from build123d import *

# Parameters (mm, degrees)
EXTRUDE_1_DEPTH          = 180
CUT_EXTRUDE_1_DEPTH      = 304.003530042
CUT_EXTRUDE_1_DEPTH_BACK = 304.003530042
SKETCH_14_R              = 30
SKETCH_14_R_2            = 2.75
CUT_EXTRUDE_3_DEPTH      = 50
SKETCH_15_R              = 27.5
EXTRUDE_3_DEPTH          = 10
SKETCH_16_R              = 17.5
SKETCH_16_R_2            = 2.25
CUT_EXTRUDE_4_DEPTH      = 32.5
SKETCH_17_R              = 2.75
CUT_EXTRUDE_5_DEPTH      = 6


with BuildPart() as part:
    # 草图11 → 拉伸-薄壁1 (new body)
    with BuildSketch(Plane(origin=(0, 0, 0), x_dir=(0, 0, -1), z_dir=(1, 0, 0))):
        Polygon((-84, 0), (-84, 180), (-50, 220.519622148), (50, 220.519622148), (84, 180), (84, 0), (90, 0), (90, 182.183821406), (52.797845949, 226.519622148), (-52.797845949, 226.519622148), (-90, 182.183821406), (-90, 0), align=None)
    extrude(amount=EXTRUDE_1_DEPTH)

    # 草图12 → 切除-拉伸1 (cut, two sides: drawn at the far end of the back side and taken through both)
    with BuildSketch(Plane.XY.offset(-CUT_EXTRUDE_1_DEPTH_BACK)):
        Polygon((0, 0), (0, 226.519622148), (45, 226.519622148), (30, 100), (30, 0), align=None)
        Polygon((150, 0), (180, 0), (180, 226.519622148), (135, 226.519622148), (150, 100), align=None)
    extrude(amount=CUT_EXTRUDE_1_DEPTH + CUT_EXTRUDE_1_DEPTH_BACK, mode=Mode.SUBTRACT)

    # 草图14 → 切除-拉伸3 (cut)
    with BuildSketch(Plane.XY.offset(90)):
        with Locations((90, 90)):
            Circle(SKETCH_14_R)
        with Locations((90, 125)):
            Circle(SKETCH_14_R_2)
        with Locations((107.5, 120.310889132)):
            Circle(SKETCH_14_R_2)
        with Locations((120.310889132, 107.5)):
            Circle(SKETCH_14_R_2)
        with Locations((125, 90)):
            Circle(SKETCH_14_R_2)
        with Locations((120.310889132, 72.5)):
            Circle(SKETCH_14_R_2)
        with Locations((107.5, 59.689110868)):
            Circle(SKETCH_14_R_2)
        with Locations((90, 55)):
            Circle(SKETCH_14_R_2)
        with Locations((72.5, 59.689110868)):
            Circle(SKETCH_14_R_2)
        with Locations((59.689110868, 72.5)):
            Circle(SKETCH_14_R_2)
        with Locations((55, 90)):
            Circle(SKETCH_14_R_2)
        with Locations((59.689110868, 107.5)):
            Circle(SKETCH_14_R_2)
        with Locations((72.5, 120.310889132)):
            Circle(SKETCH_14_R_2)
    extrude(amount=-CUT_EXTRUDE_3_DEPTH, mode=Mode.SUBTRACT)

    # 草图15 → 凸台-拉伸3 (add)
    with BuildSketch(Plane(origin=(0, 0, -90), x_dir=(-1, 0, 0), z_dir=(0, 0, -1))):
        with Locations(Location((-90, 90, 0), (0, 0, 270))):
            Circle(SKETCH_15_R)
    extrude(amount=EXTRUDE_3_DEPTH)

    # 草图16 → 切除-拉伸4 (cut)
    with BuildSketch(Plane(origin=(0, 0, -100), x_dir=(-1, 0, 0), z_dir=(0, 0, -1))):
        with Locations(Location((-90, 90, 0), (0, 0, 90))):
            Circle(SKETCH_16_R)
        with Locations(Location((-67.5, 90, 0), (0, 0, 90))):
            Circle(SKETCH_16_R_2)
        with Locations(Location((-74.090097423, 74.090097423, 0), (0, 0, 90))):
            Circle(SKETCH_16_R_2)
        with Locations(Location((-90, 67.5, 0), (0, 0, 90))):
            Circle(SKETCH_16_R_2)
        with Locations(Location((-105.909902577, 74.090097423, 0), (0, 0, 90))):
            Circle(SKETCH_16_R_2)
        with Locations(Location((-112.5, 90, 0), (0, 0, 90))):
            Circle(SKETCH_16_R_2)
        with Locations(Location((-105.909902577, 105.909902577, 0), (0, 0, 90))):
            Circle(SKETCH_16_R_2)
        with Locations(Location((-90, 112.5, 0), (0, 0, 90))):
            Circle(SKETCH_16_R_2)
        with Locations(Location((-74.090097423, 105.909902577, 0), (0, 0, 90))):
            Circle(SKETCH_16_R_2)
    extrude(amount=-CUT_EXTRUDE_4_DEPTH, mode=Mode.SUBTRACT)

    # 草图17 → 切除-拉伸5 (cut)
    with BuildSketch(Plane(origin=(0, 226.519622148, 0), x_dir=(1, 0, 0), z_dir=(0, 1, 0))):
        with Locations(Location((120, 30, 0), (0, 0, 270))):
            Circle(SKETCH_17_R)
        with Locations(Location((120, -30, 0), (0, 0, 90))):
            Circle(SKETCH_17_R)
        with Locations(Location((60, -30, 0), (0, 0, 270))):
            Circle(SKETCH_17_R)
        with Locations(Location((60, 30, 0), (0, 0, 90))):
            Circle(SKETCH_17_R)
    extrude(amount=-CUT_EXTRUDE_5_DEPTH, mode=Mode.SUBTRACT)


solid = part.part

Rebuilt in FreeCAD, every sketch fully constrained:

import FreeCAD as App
import Part
import Sketcher
Q = App.Units.Quantity


def add_polygon(sketch, points):
    """Adds a closed chain of lines whose ends are joined by coincident constraints."""
    first, n = sketch.GeometryCount, len(points)
    for a, b in zip(points, points[1:] + points[:1]):
        sketch.addGeometry(Part.LineSegment(App.Vector(*a, 0), App.Vector(*b, 0)), False)
    for i in range(n):
        sketch.addConstraint(Sketcher.Constraint("Coincident", first + i, 2, first + (i + 1) % n, 1))

doc = App.newDocument("Part")
body = doc.addObject("PartDesign::Body", "Body")

# Sketch on YZ plane
sketch1 = body.newObject("Sketcher::SketchObject", "Sketch")
sketch1.AttachmentSupport = (doc.getObject("YZ_Plane"), [""])
sketch1.MapMode = "FlatFace"
add_polygon(sketch1, [(0, 84), (180, 84), (221, 50), (221, -50), (180, -84), (0, -84), (0, -90), (182, -90), (227, -53), (227, 53), (182, 90), (0, 90)])  # lines 0-11
sketch1.addConstraint([
    Sketcher.Constraint("Horizontal", 0),
    Sketcher.Constraint("Vertical", 2),
    Sketcher.Constraint("Horizontal", 4),
    Sketcher.Constraint("Vertical", 5),
    Sketcher.Constraint("Horizontal", 6),
    Sketcher.Constraint("Vertical", 8),
    Sketcher.Constraint("Horizontal", 10),
    Sketcher.Constraint("Vertical", 11),
    Sketcher.Constraint("Symmetric", 5, 2, 10, 2, -1, 1),
    Sketcher.Constraint("Symmetric", 0, 2, 3, 2, -1),
    Sketcher.Constraint("PointOnObject", 4, 2, -2),
    Sketcher.Constraint("Parallel", 3, 7),
    Sketcher.Constraint("Parallel", 1, 9),
    Sketcher.Constraint("Vertical", 6, 2, 9, 2),
    Sketcher.Constraint("Equal", 1, 3),
    Sketcher.Constraint("DistanceX", 0, 1, 0, 2, 180.0),
    Sketcher.Constraint("DistanceY", 2, 2, 2, 1, 100.0),
    Sketcher.Constraint("DistanceY", 5, 2, 5, 1, 6.0),
    Sketcher.Constraint("Angle", 1, Q("-40 deg")),
    Sketcher.Constraint("DistanceY", -1, 1, 0, 2, 84.0),
    Sketcher.Constraint("DistanceX", 2, 2, 7, 2, 6.0),
    Sketcher.Constraint("DistanceX", 6, 1, 6, 2, 182.183821),
])
pad1 = body.newObject("PartDesign::Pad", "Pad")
pad1.Profile = sketch1
pad1.Length = 180

# Sketch on XY plane
sketch2 = body.newObject("Sketcher::SketchObject", "Sketch001")
sketch2.AttachmentSupport = (doc.getObject("XY_Plane"), [""])
sketch2.MapMode = "FlatFace"
add_polygon(sketch2, [(0, 227), (0, 0), (30, 0), (30, 100), (45, 227)])  # lines 0-4
add_polygon(sketch2, [(150, 0), (180, 0), (180, 227), (135, 227), (150, 100)])  # lines 5-9
sketch2.addConstraint([
    Sketcher.Constraint("Vertical", 0),
    Sketcher.Constraint("Horizontal", 1),
    Sketcher.Constraint("Vertical", 2),
    Sketcher.Constraint("Horizontal", 4),
    Sketcher.Constraint("Horizontal", 5),
    Sketcher.Constraint("Vertical", 6),
    Sketcher.Constraint("Horizontal", 7),
    Sketcher.Constraint("Vertical", 9),
    Sketcher.Constraint("Coincident", 0, 2, -1, 1),
    Sketcher.Constraint("PointOnObject", 5, 2, -1),
    Sketcher.Constraint("Horizontal", 4, 2, 6, 2),
    Sketcher.Constraint("Horizontal", 2, 2, 8, 2),
    Sketcher.Constraint("Equal", 1, 5),
    Sketcher.Constraint("Equal", 4, 7),
    Sketcher.Constraint("DistanceX", 1, 1, 1, 2, 30.0),
    Sketcher.Constraint("DistanceX", 4, 2, 4, 1, 45.0),
    Sketcher.Constraint("DistanceY", 2, 1, 2, 2, 100.0),
    Sketcher.Constraint("DistanceX", -1, 1, 5, 2, 180.0),
    Sketcher.Constraint("Distance", 3, 127.405709),
])
pocket1 = body.newObject("PartDesign::Pocket", "Pocket")
pocket1.Profile = sketch2
pocket1.Type = "ThroughAll"
pocket1.Midplane = True

# Sketch on XY plane
sketch3 = body.newObject("Sketcher::SketchObject", "Sketch002")
sketch3.AttachmentSupport = (doc.getObject("XY_Plane"), [""])
sketch3.MapMode = "FlatFace"
sketch3.AttachmentOffset = App.Placement(App.Vector(0, 0, 90), App.Rotation())
sketch3.addGeometry([
    Part.Circle(App.Vector(90, 90, 0), App.Vector(0, 0, 1), 30),  # 0
    Part.Circle(App.Vector(90, 125, 0), App.Vector(0, 0, 1), 2.8),  # 1
    Part.Circle(App.Vector(107.5, 120.3, 0), App.Vector(0, 0, 1), 2.8),  # 2
    Part.Circle(App.Vector(120.3, 107.5, 0), App.Vector(0, 0, 1), 2.8),  # 3
    Part.Circle(App.Vector(125, 90, 0), App.Vector(0, 0, 1), 2.8),  # 4
    Part.Circle(App.Vector(120.3, 72.5, 0), App.Vector(0, 0, 1), 2.8),  # 5
    Part.Circle(App.Vector(107.5, 59.7, 0), App.Vector(0, 0, 1), 2.8),  # 6
    Part.Circle(App.Vector(90, 55, 0), App.Vector(0, 0, 1), 2.8),  # 7
    Part.Circle(App.Vector(72.5, 59.7, 0), App.Vector(0, 0, 1), 2.8),  # 8
    Part.Circle(App.Vector(59.7, 72.5, 0), App.Vector(0, 0, 1), 2.8),  # 9
    Part.Circle(App.Vector(55, 90, 0), App.Vector(0, 0, 1), 2.8),  # 10
    Part.Circle(App.Vector(59.7, 107.5, 0), App.Vector(0, 0, 1), 2.8),  # 11
    Part.Circle(App.Vector(72.5, 120.3, 0), App.Vector(0, 0, 1), 2.8),  # 12
], False)
sketch3.addConstraint([
    Sketcher.Constraint("Equal", 1, 2),
    Sketcher.Constraint("Equal", 2, 3),
    Sketcher.Constraint("Equal", 3, 4),
    Sketcher.Constraint("Equal", 4, 5),
    Sketcher.Constraint("Equal", 5, 6),
    Sketcher.Constraint("Equal", 6, 7),
    Sketcher.Constraint("Equal", 7, 8),
    Sketcher.Constraint("Equal", 8, 9),
    Sketcher.Constraint("Equal", 9, 10),
    Sketcher.Constraint("Equal", 10, 11),
    Sketcher.Constraint("Equal", 11, 12),
    Sketcher.Constraint("Horizontal", 0, 3, 4, 3),
    Sketcher.Constraint("Horizontal", 6, 3, 8, 3),
    Sketcher.Constraint("Horizontal", 5, 3, 9, 3),
    Sketcher.Constraint("Horizontal", 4, 3, 10, 3),
    Sketcher.Constraint("Horizontal", 3, 3, 11, 3),
    Sketcher.Constraint("Horizontal", 2, 3, 12, 3),
    Sketcher.Constraint("Vertical", 0, 3, 1, 3),
    Sketcher.Constraint("Vertical", 3, 3, 5, 3),
    Sketcher.Constraint("Vertical", 2, 3, 6, 3),
    Sketcher.Constraint("Vertical", 1, 3, 7, 3),
    Sketcher.Constraint("Vertical", 9, 3, 11, 3),
    Sketcher.Constraint("Vertical", 8, 3, 12, 3),
    Sketcher.Constraint("Diameter", 0, 60.0),
    Sketcher.Constraint("Diameter", 1, 5.5),
    Sketcher.Constraint("DistanceX", -1, 1, 0, 3, 90.0),
    Sketcher.Constraint("DistanceY", -1, 1, 0, 3, 90.0),
    Sketcher.Constraint("DistanceY", -1, 1, 1, 3, 125.0),
    Sketcher.Constraint("DistanceX", -1, 1, 4, 3, 125.0),
    Sketcher.Constraint("DistanceY", -1, 1, 7, 3, 55.0),
    Sketcher.Constraint("DistanceX", -1, 1, 10, 3, 55.0),
    Sketcher.Constraint("DistanceY", 5, 3, 3, 3, 35.0),
    Sketcher.Constraint("DistanceX", 8, 3, 6, 3, 35.0),
    Sketcher.Constraint("DistanceX", -1, 1, 2, 3, 107.5),
    Sketcher.Constraint("DistanceY", -1, 1, 3, 3, 107.5),
    Sketcher.Constraint("DistanceY", -1, 1, 2, 3, 120.310889),
    Sketcher.Constraint("DistanceX", -1, 1, 3, 3, 120.310889),
    Sketcher.Constraint("DistanceY", -1, 1, 6, 3, 59.689111),
    Sketcher.Constraint("DistanceX", -1, 1, 9, 3, 59.689111),
])
pocket2 = body.newObject("PartDesign::Pocket", "Pocket001")
pocket2.Profile = sketch3
pocket2.Length = 50

# Sketch on XY plane
sketch4 = body.newObject("Sketcher::SketchObject", "Sketch003")
sketch4.AttachmentSupport = (doc.getObject("XY_Plane"), [""])
sketch4.MapMode = "FlatFace"
sketch4.AttachmentOffset = App.Placement(App.Vector(0, 0, -90), App.Rotation())
sketch4.addGeometry(Part.Circle(App.Vector(90, 90, 0), App.Vector(0, 0, 1), 28), False)
sketch4.addConstraint([
    Sketcher.Constraint("Diameter", 0, 55.0),
    Sketcher.Constraint("DistanceX", -1, 1, 0, 3, 90.0),
    Sketcher.Constraint("DistanceY", -1, 1, 0, 3, 90.0),
])
pad2 = body.newObject("PartDesign::Pad", "Pad001")
pad2.Profile = sketch4
pad2.Length = 10
pad2.Reversed = True

# Sketch on XY plane
sketch5 = body.newObject("Sketcher::SketchObject", "Sketch004")
sketch5.AttachmentSupport = (doc.getObject("XY_Plane"), [""])
sketch5.MapMode = "FlatFace"
sketch5.AttachmentOffset = App.Placement(App.Vector(0, 0, -100), App.Rotation())
sketch5.addGeometry([
    Part.Circle(App.Vector(90, 90, 0), App.Vector(0, 0, 1), 17.5),  # 0
    Part.Circle(App.Vector(67.5, 90, 0), App.Vector(0, 0, 1), 2.2),  # 1
    Part.Circle(App.Vector(74.1, 74.1, 0), App.Vector(0, 0, 1), 2.2),  # 2
    Part.Circle(App.Vector(90, 67.5, 0), App.Vector(0, 0, 1), 2.2),  # 3
    Part.Circle(App.Vector(105.9, 74.1, 0), App.Vector(0, 0, 1), 2.2),  # 4
    Part.Circle(App.Vector(112.5, 90, 0), App.Vector(0, 0, 1), 2.2),  # 5
    Part.Circle(App.Vector(105.9, 105.9, 0), App.Vector(0, 0, 1), 2.2),  # 6
    Part.Circle(App.Vector(90, 112.5, 0), App.Vector(0, 0, 1), 2.2),  # 7
    Part.Circle(App.Vector(74.1, 105.9, 0), App.Vector(0, 0, 1), 2.2),  # 8
], False)
sketch5.addConstraint([
    Sketcher.Constraint("Equal", 1, 2),
    Sketcher.Constraint("Equal", 2, 3),
    Sketcher.Constraint("Equal", 3, 4),
    Sketcher.Constraint("Equal", 4, 5),
    Sketcher.Constraint("Equal", 5, 6),
    Sketcher.Constraint("Equal", 6, 7),
    Sketcher.Constraint("Equal", 7, 8),
    Sketcher.Constraint("Horizontal", 0, 3, 1, 3),
    Sketcher.Constraint("Horizontal", 2, 3, 4, 3),
    Sketcher.Constraint("Horizontal", 1, 3, 5, 3),
    Sketcher.Constraint("Horizontal", 6, 3, 8, 3),
    Sketcher.Constraint("Vertical", 0, 3, 3, 3),
    Sketcher.Constraint("Vertical", 4, 3, 6, 3),
    Sketcher.Constraint("Vertical", 3, 3, 7, 3),
    Sketcher.Constraint("Vertical", 2, 3, 8, 3),
    Sketcher.Constraint("Diameter", 0, 35.0),
    Sketcher.Constraint("Diameter", 1, 4.5),
    Sketcher.Constraint("DistanceX", -1, 1, 0, 3, 90.0),
    Sketcher.Constraint("DistanceY", -1, 1, 0, 3, 90.0),
    Sketcher.Constraint("DistanceX", 1, 3, 5, 3, 45.0),
    Sketcher.Constraint("DistanceX", -1, 1, 1, 3, 67.5),
    Sketcher.Constraint("DistanceY", -1, 1, 3, 3, 67.5),
    Sketcher.Constraint("DistanceY", -1, 1, 7, 3, 112.5),
    Sketcher.Constraint("DistanceX", -1, 1, 2, 3, 74.090097),
    Sketcher.Constraint("DistanceY", -1, 1, 2, 3, 74.090097),
    Sketcher.Constraint("DistanceX", -1, 1, 4, 3, 105.909903),
    Sketcher.Constraint("DistanceY", -1, 1, 6, 3, 105.909903),
])
pocket3 = body.newObject("PartDesign::Pocket", "Pocket002")
pocket3.Profile = sketch5
pocket3.Length = 32.5
pocket3.Reversed = True

# Sketch on XZ plane
sketch6 = body.newObject("Sketcher::SketchObject", "Sketch005")
sketch6.AttachmentSupport = (doc.getObject("XZ_Plane"), [""])
sketch6.MapMode = "FlatFace"
sketch6.AttachmentOffset = App.Placement(App.Vector(0, 0, -226.519622), App.Rotation())
sketch6.addGeometry([
    Part.Circle(App.Vector(120, -30, 0), App.Vector(0, 0, 1), 2.8),
    Part.Circle(App.Vector(120, 30, 0), App.Vector(0, 0, 1), 2.8),
    Part.Circle(App.Vector(60, 30, 0), App.Vector(0, 0, 1), 2.8),
    Part.Circle(App.Vector(60, -30, 0), App.Vector(0, 0, 1), 2.8),
], False)
sketch6.addConstraint([
    Sketcher.Constraint("Equal", 0, 1),
    Sketcher.Constraint("Equal", 1, 2),
    Sketcher.Constraint("Equal", 2, 3),
    Sketcher.Constraint("Symmetric", 0, 3, 1, 3, -1),
    Sketcher.Constraint("Symmetric", 2, 3, 3, 3, -1),
    Sketcher.Constraint("Horizontal", 1, 3, 2, 3),
    Sketcher.Constraint("Diameter", 0, 5.5),
    Sketcher.Constraint("DistanceX", -1, 1, 0, 3, 120.0),
    Sketcher.Constraint("DistanceY", 0, 3, -1, 1, 30.0),
    Sketcher.Constraint("DistanceX", -1, 1, 2, 3, 60.0),
])
pocket4 = body.newObject("PartDesign::Pocket", "Pocket003")
pocket4.Profile = sketch6
pocket4.Length = 6
pocket4.Reversed = True

doc.recompute()
